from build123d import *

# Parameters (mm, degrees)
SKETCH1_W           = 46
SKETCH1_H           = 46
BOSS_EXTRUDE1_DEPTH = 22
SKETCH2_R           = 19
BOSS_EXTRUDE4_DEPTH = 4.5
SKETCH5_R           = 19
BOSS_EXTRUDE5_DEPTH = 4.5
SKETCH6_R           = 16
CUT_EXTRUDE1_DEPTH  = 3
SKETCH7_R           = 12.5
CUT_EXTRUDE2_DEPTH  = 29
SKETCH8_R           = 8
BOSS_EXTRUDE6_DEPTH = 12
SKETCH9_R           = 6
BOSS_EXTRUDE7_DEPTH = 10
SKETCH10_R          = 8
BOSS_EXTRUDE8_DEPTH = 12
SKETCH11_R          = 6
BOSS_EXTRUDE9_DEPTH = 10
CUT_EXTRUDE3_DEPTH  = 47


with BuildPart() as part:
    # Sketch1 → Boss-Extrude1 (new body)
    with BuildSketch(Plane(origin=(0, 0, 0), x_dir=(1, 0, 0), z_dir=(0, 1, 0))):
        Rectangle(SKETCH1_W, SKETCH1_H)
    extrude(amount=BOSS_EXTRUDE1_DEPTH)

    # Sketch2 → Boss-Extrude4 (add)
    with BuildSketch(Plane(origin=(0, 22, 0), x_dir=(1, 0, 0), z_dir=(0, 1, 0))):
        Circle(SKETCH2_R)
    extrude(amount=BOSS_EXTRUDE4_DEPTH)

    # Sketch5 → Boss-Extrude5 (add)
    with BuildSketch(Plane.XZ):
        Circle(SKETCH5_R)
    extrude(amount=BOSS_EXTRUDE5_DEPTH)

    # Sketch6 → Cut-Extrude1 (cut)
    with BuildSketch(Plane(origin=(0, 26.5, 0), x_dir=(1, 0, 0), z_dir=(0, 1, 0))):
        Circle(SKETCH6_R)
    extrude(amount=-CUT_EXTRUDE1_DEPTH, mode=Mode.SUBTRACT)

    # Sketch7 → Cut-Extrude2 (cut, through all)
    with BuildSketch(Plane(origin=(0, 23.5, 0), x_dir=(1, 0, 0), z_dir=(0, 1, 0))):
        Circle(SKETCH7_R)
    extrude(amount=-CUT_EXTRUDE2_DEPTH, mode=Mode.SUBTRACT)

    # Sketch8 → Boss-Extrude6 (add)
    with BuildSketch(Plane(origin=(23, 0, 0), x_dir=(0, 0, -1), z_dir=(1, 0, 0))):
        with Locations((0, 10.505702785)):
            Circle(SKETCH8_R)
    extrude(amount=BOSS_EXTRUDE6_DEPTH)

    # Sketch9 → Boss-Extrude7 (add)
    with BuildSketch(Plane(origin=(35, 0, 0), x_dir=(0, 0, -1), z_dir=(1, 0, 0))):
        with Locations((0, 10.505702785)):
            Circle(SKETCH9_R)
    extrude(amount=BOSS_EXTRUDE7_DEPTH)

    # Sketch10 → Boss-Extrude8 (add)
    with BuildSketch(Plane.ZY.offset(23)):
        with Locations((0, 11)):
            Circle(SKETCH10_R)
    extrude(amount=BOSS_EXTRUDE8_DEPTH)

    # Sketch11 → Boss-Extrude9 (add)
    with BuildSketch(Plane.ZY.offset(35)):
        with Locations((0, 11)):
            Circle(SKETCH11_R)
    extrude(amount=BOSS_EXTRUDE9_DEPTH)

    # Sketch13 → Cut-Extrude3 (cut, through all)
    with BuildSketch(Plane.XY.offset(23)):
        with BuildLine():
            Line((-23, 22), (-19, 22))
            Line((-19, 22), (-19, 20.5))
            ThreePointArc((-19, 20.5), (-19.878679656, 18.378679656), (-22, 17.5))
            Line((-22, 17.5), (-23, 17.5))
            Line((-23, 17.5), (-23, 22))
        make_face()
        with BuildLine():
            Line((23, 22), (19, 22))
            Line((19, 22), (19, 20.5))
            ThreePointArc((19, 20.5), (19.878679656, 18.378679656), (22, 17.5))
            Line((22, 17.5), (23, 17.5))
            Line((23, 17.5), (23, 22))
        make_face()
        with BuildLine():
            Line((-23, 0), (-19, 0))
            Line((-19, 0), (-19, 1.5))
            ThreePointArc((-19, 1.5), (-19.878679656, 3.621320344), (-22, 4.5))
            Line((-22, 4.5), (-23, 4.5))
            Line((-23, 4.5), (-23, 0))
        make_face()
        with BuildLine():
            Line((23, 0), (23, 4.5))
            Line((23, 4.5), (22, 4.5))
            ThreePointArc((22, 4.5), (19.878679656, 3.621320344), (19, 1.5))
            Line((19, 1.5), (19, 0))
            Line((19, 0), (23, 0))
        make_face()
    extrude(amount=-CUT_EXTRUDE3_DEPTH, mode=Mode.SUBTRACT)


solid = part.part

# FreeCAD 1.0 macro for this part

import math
import FreeCAD as App
import Part
import Sketcher
from FreeCAD import Vector
Q = App.Units.Quantity

doc = App.newDocument("Part")
body = doc.addObject("PartDesign::Body", "Body")

# Sketch on XZ plane
sketch1 = doc.addObject("Sketcher::SketchObject", "Sketch")
body.addObject(sketch1)
sketch1.AttachmentSupport = (doc.XZ_Plane, [""])
sketch1.MapMode = "FlatFace"
sketch1.addGeometry([
    Part.LineSegment(Vector(-23, -23, 0), Vector(-23, 23, 0)),
    Part.LineSegment(Vector(-23, 23, 0), Vector(23, 23, 0)),
    Part.LineSegment(Vector(23, 23, 0), Vector(23, -23, 0)),
    Part.LineSegment(Vector(23, -23, 0), Vector(-23, -23, 0)),
], False)
sketch1.addConstraint([
    Sketcher.Constraint("Coincident", 0, 2, 1, 1),
    Sketcher.Constraint("Coincident", 1, 2, 2, 1),
    Sketcher.Constraint("Coincident", 2, 2, 3, 1),
    Sketcher.Constraint("Coincident", 3, 2, 0, 1),
    Sketcher.Constraint("Vertical", 0),
    Sketcher.Constraint("Horizontal", 1),
    Sketcher.Constraint("Vertical", 2),
    Sketcher.Constraint("Horizontal", 3),
    Sketcher.Constraint("Symmetric", 0, 2, 2, 2, -1, 1),
    Sketcher.Constraint("Equal", 3, 0),
    Sketcher.Constraint("DistanceX", 1, 1, 1, 2, Q("46 mm")),
])
pad1 = doc.addObject("PartDesign::Pad", "Pad")
body.addObject(pad1)
pad1.Profile = sketch1
pad1.Length = 22
pad1.Reversed = True

# Sketch on XZ plane
sketch2 = doc.addObject("Sketcher::SketchObject", "Sketch001")
body.addObject(sketch2)
sketch2.AttachmentSupport = (doc.XZ_Plane, [""])
sketch2.MapMode = "FlatFace"
sketch2.AttachmentOffset = App.Placement(Vector(0, 0, -22), App.Rotation())
sketch2.addGeometry(Part.Circle(Vector(0, 0, 0), Vector(0, 0, 1), 19), False)
sketch2.addConstraint([
    Sketcher.Constraint("Coincident", 0, 3, -1, 1),
    Sketcher.Constraint("Diameter", 0, Q("38 mm")),
])
pad2 = doc.addObject("PartDesign::Pad", "Pad001")
body.addObject(pad2)
pad2.Profile = sketch2
pad2.Length = 4.5
pad2.Reversed = True

# Sketch on XZ plane
sketch3 = doc.addObject("Sketcher::SketchObject", "Sketch002")
body.addObject(sketch3)
sketch3.AttachmentSupport = (doc.XZ_Plane, [""])
sketch3.MapMode = "FlatFace"
sketch3.addGeometry(Part.Circle(Vector(0, 0, 0), Vector(0, 0, 1), 19), False)
sketch3.addConstraint([
    Sketcher.Constraint("Coincident", 0, 3, -1, 1),
    Sketcher.Constraint("Diameter", 0, Q("38 mm")),
])
pad3 = doc.addObject("PartDesign::Pad", "Pad002")
body.addObject(pad3)
pad3.Profile = sketch3
pad3.Length = 4.5

# Sketch on XZ plane
sketch4 = doc.addObject("Sketcher::SketchObject", "Sketch003")
body.addObject(sketch4)
sketch4.AttachmentSupport = (doc.XZ_Plane, [""])
sketch4.MapMode = "FlatFace"
sketch4.AttachmentOffset = App.Placement(Vector(0, 0, -26.5), App.Rotation())
sketch4.addGeometry(Part.Circle(Vector(0, 0, 0), Vector(0, 0, 1), 16), False)
sketch4.addConstraint([
    Sketcher.Constraint("Coincident", 0, 3, -1, 1),
    Sketcher.Constraint("Diameter", 0, Q("32 mm")),
])
pocket1 = doc.addObject("PartDesign::Pocket", "Pocket")
body.addObject(pocket1)
pocket1.Profile = sketch4
pocket1.Length = 3
pocket1.Reversed = True

# Sketch on XZ plane
sketch5 = doc.addObject("Sketcher::SketchObject", "Sketch004")
body.addObject(sketch5)
sketch5.AttachmentSupport = (doc.XZ_Plane, [""])
sketch5.MapMode = "FlatFace"
sketch5.AttachmentOffset = App.Placement(Vector(0, 0, -23.5), App.Rotation())
sketch5.addGeometry(Part.Circle(Vector(0, 0, 0), Vector(0, 0, 1), 12.5), False)
sketch5.addConstraint([
    Sketcher.Constraint("Coincident", 0, 3, -1, 1),
    Sketcher.Constraint("Diameter", 0, Q("25 mm")),
])
pocket2 = doc.addObject("PartDesign::Pocket", "Pocket001")
body.addObject(pocket2)
pocket2.Profile = sketch5
pocket2.Type = "ThroughAll"
pocket2.Reversed = True

# Sketch on YZ plane
sketch6 = doc.addObject("Sketcher::SketchObject", "Sketch005")
body.addObject(sketch6)
sketch6.AttachmentSupport = (doc.YZ_Plane, [""])
sketch6.MapMode = "FlatFace"
sketch6.AttachmentOffset = App.Placement(Vector(0, 0, 23), App.Rotation())
sketch6.addGeometry(Part.Circle(Vector(10.505703, 0, 0), Vector(0, 0, 1), 8), False)
sketch6.addConstraint([
    Sketcher.Constraint("PointOnObject", 0, 3, -1),
    Sketcher.Constraint("Diameter", 0, Q("16 mm")),
    Sketcher.Constraint("DistanceX", -1, 1, 0, 3, Q("10.505703 mm")),
])
pad4 = doc.addObject("PartDesign::Pad", "Pad003")
body.addObject(pad4)
pad4.Profile = sketch6
pad4.Length = 12

# Sketch on YZ plane
sketch7 = doc.addObject("Sketcher::SketchObject", "Sketch006")
body.addObject(sketch7)
sketch7.AttachmentSupport = (doc.YZ_Plane, [""])
sketch7.MapMode = "FlatFace"
sketch7.AttachmentOffset = App.Placement(Vector(0, 0, 35), App.Rotation())
sketch7.addGeometry(Part.Circle(Vector(10.505703, 0, 0), Vector(0, 0, 1), 6), False)
sketch7.addConstraint([
    Sketcher.Constraint("PointOnObject", 0, 3, -1),
    Sketcher.Constraint("Diameter", 0, Q("12 mm")),
    Sketcher.Constraint("DistanceX", -1, 1, 0, 3, Q("10.505703 mm")),
])
pad5 = doc.addObject("PartDesign::Pad", "Pad004")
body.addObject(pad5)
pad5.Profile = sketch7
pad5.Length = 10

# Sketch on YZ plane
sketch8 = doc.addObject("Sketcher::SketchObject", "Sketch007")
body.addObject(sketch8)
sketch8.AttachmentSupport = (doc.YZ_Plane, [""])
sketch8.MapMode = "FlatFace"
sketch8.AttachmentOffset = App.Placement(Vector(0, 0, -23), App.Rotation())
sketch8.addGeometry(Part.Circle(Vector(11, 0, 0), Vector(0, 0, 1), 8), False)
sketch8.addConstraint([
    Sketcher.Constraint("PointOnObject", 0, 3, -1),
    Sketcher.Constraint("Diameter", 0, Q("16 mm")),
    Sketcher.Constraint("DistanceX", -1, 1, 0, 3, Q("11 mm")),
])
pad6 = doc.addObject("PartDesign::Pad", "Pad005")
body.addObject(pad6)
pad6.Profile = sketch8
pad6.Length = 12
pad6.Reversed = True

# Sketch on YZ plane
sketch9 = doc.addObject("Sketcher::SketchObject", "Sketch008")
body.addObject(sketch9)
sketch9.AttachmentSupport = (doc.YZ_Plane, [""])
sketch9.MapMode = "FlatFace"
sketch9.AttachmentOffset = App.Placement(Vector(0, 0, -35), App.Rotation())
sketch9.addGeometry(Part.Circle(Vector(11, 0, 0), Vector(0, 0, 1), 6), False)
sketch9.addConstraint([
    Sketcher.Constraint("PointOnObject", 0, 3, -1),
    Sketcher.Constraint("Diameter", 0, Q("12 mm")),
    Sketcher.Constraint("DistanceX", -1, 1, 0, 3, Q("11 mm")),
])
pad7 = doc.addObject("PartDesign::Pad", "Pad006")
body.addObject(pad7)
pad7.Profile = sketch9
pad7.Length = 10
pad7.Reversed = True

# Sketch on XY plane
sketch10 = doc.addObject("Sketcher::SketchObject", "Sketch009")
body.addObject(sketch10)
sketch10.AttachmentSupport = (doc.XY_Plane, [""])
sketch10.MapMode = "FlatFace"
sketch10.AttachmentOffset = App.Placement(Vector(0, 0, 23), App.Rotation())
sketch10.addGeometry([
    Part.LineSegment(Vector(-19, 22, 0), Vector(-23, 22, 0)),  # 0
    Part.LineSegment(Vector(-23, 22, 0), Vector(-23, 17.5, 0)),  # 1
    Part.LineSegment(Vector(-23, 17.5, 0), Vector(-22, 17.5, 0)),  # 2
    Part.ArcOfCircle(Part.Circle(Vector(-22, 20.5, 0), Vector(0, 0, 1), 3), math.radians(-90), math.radians(0)),  # 3
    Part.LineSegment(Vector(-19, 20.5, 0), Vector(-19, 22, 0)),  # 4
    Part.LineSegment(Vector(23, 22, 0), Vector(19, 22, 0)),  # 5
    Part.LineSegment(Vector(19, 22, 0), Vector(19, 20.5, 0)),  # 6
    Part.ArcOfCircle(Part.Circle(Vector(22, 20.5, 0), Vector(0, 0, 1), 3), math.radians(180), math.radians(270)),  # 7
    Part.LineSegment(Vector(22, 17.5, 0), Vector(23, 17.5, 0)),  # 8
    Part.LineSegment(Vector(23, 17.5, 0), Vector(23, 22, 0)),  # 9
    Part.LineSegment(Vector(-23, 0, 0), Vector(-19, 0, 0)),  # 10
    Part.LineSegment(Vector(-19, 0, 0), Vector(-19, 1.5, 0)),  # 11
    Part.ArcOfCircle(Part.Circle(Vector(-22, 1.5, 0), Vector(0, 0, 1), 3), math.radians(0), math.radians(90)),  # 12
    Part.LineSegment(Vector(-22, 4.5, 0), Vector(-23, 4.5, 0)),  # 13
    Part.LineSegment(Vector(-23, 4.5, 0), Vector(-23, 0, 0)),  # 14
    Part.LineSegment(Vector(23, 0, 0), Vector(23, 4.5, 0)),  # 15
    Part.LineSegment(Vector(23, 4.5, 0), Vector(22, 4.5, 0)),  # 16
    Part.ArcOfCircle(Part.Circle(Vector(22, 1.5, 0), Vector(0, 0, 1), 3), math.radians(90), math.radians(180)),  # 17
    Part.LineSegment(Vector(19, 1.5, 0), Vector(19, 0, 0)),  # 18
    Part.LineSegment(Vector(19, 0, 0), Vector(23, 0, 0)),  # 19
], False)
sketch10.addConstraint([
    Sketcher.Constraint("Coincident", 0, 2, 1, 1),
    Sketcher.Constraint("Coincident", 1, 2, 2, 1),
    Sketcher.Constraint("Tangent", 2, 2, 3, 1),
    Sketcher.Constraint("Tangent", 3, 2, 4, 1),
    Sketcher.Constraint("Coincident", 4, 2, 0, 1),
    Sketcher.Constraint("Coincident", 5, 2, 6, 1),
    Sketcher.Constraint("Tangent", 6, 2, 7, 1),
    Sketcher.Constraint("Tangent", 7, 2, 8, 1),
    Sketcher.Constraint("Coincident", 8, 2, 9, 1),
    Sketcher.Constraint("Coincident", 9, 2, 5, 1),
    Sketcher.Constraint("Coincident", 10, 2, 11, 1),
    Sketcher.Constraint("Tangent", 11, 2, 12, 1),
    Sketcher.Constraint("Tangent", 12, 2, 13, 1),
    Sketcher.Constraint("Coincident", 13, 2, 14, 1),
    Sketcher.Constraint("Coincident", 14, 2, 10, 1),
    Sketcher.Constraint("Coincident", 15, 2, 16, 1),
    Sketcher.Constraint("Tangent", 16, 2, 17, 1),
    Sketcher.Constraint("Tangent", 17, 2, 18, 1),
    Sketcher.Constraint("Coincident", 18, 2, 19, 1),
    Sketcher.Constraint("Coincident", 19, 2, 15, 1),
    Sketcher.Constraint("Horizontal", 0),
    Sketcher.Constraint("Vertical", 1),
    Sketcher.Constraint("Horizontal", 2),
    Sketcher.Constraint("Vertical", 4),
    Sketcher.Constraint("Horizontal", 5),
    Sketcher.Constraint("Vertical", 6),
    Sketcher.Constraint("Horizontal", 8),
    Sketcher.Constraint("Vertical", 9),
    Sketcher.Constraint("Horizontal", 10),
    Sketcher.Constraint("Vertical", 11),
    Sketcher.Constraint("Horizontal", 13),
    Sketcher.Constraint("Vertical", 14),
    Sketcher.Constraint("Vertical", 15),
    Sketcher.Constraint("Horizontal", 16),
    Sketcher.Constraint("Vertical", 18),
    Sketcher.Constraint("Horizontal", 19),
    Sketcher.Constraint("Equal", 3, 7),
    Sketcher.Constraint("Equal", 7, 12),
    Sketcher.Constraint("Equal", 12, 17),
    Sketcher.Constraint("Symmetric", 10, 2, 18, 2, -1, 1),
    Sketcher.Constraint("Symmetric", 3, 3, 7, 3, -2),
    Sketcher.Constraint("Symmetric", 0, 2, 9, 2, -2),
    Sketcher.Constraint("Symmetric", 13, 2, 15, 2, -2),
    Sketcher.Constraint("PointOnObject", 10, 2, -1),
    Sketcher.Constraint("Vertical", 3, 3, 12, 3),
    Sketcher.Constraint("Vertical", 1, 2, 13, 2),
    Sketcher.Constraint("Equal", 6, 11),
    Sketcher.Constraint("Radius", 3, Q("3 mm")),
    Sketcher.Constraint("DistanceX", 0, 2, 0, 1, Q("4 mm")),
    Sketcher.Constraint("DistanceY", 1, 2, 1, 1, Q("4.5 mm")),
    Sketcher.Constraint("DistanceX", 3, 3, -1, 1, Q("22 mm")),
    Sketcher.Constraint("DistanceY", -1, 1, 0, 2, Q("22 mm")),
])
pocket3 = doc.addObject("PartDesign::Pocket", "Pocket002")
body.addObject(pocket3)
pocket3.Profile = sketch10
pocket3.Type = "ThroughAll"

doc.recompute()
